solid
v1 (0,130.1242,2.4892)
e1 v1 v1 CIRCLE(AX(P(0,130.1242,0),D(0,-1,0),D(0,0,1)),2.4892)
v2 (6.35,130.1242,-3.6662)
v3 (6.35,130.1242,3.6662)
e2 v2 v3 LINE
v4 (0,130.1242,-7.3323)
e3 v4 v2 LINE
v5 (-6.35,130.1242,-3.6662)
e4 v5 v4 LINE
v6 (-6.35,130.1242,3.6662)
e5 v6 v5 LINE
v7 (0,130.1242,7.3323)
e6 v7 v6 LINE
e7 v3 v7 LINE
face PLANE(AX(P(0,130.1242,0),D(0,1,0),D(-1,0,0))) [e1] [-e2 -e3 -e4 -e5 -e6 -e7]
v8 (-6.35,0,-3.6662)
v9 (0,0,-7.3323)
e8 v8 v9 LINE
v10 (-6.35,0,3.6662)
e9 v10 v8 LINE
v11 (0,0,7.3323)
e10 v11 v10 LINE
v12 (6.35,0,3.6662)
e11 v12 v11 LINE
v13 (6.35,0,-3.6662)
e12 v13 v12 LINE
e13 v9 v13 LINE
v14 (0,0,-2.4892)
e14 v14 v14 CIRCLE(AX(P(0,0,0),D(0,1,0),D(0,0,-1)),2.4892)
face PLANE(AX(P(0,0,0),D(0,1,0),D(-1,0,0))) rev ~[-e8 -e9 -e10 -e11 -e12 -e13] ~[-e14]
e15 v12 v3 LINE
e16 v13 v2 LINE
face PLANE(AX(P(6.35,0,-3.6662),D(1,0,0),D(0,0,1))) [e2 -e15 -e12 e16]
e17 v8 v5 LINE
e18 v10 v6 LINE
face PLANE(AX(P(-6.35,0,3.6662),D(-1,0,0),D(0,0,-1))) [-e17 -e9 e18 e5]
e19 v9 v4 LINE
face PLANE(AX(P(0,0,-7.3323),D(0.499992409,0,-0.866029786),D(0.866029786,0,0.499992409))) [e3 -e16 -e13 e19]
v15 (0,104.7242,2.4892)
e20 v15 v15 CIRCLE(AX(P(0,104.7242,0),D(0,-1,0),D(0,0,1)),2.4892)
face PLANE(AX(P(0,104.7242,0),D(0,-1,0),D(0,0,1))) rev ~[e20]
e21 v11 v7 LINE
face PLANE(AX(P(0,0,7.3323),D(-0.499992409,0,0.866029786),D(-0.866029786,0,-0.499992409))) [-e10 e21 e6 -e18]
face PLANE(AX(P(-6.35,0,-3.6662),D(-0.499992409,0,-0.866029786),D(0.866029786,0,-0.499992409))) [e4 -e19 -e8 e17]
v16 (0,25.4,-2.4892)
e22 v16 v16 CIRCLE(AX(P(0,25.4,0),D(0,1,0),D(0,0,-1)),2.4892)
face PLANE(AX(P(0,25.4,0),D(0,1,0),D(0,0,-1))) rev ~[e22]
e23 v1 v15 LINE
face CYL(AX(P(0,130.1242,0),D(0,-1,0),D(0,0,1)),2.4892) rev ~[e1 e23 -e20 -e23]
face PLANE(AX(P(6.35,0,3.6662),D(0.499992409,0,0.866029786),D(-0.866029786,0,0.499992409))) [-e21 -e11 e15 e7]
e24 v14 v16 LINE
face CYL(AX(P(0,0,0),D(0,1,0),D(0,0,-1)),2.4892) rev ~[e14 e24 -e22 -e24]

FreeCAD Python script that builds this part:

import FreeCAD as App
import Part
import Sketcher

V = App.Vector
Q = App.Units.Quantity


def add_polygon(sketch, points):
    """Adds a closed chain of lines whose ends are joined by coincident constraints."""
    first, n = sketch.GeometryCount, len(points)
    for a, b in zip(points, points[1:] + points[:1]):
        sketch.addGeometry(Part.LineSegment(App.Vector(*a, 0), App.Vector(*b, 0)), False)
    for i in range(n):
        sketch.addConstraint(Sketcher.Constraint("Coincident", first + i, 2, first + (i + 1) % n, 1))

doc = App.newDocument("Part")
body = doc.addObject("PartDesign::Body", "Body")

sketch1 = body.newObject("Sketcher::SketchObject", "Sketch")
sketch1.AttachmentSupport = (doc.getObject("XZ_Plane"), [""])
sketch1.MapMode = "FlatFace"
add_polygon(sketch1, [(0, -7), (-6, -4), (-6, 4), (0, 7), (6, 4), (6, -4)])
sketch1.addConstraint(Sketcher.Constraint("Vertical", 1))
sketch1.addConstraint(Sketcher.Constraint("Vertical", 4))
sketch1.addConstraint(Sketcher.Constraint("Symmetric", 0, 2, 3, 2, -1, 1))
sketch1.addConstraint(Sketcher.Constraint("Symmetric", 2, 2, 5, 2, -1, 1))
sketch1.addConstraint(Sketcher.Constraint("PointOnObject", 2, 2, -2))
sketch1.addConstraint(Sketcher.Constraint("Parallel", 2, 5))
sketch1.addConstraint(Sketcher.Constraint("Horizontal", 1, 2, 3, 2))
sketch1.addConstraint(Sketcher.Constraint("DistanceX", 1, 2, 3, 2, Q("0.5 in")))
sketch1.addConstraint(Sketcher.Constraint("Angle", 0, Q("150.0005 deg")))
sketch1.addConstraint(Sketcher.Constraint("DistanceY", 0, 2, 2, 2, Q("0.433 in")))
pad1 = body.newObject("PartDesign::Pad", "Pad")
pad1.Profile = sketch1
pad1.Length = Q("5.123 in")
pad1.Reversed = True

sketch2 = body.newObject("Sketcher::SketchObject", "Sketch001")
sketch2.AttachmentSupport = (doc.getObject("XZ_Plane"), [""])
sketch2.MapMode = "FlatFace"
sketch2.addGeometry(Part.Circle(V(0, 0, 0), V(0, 0, 1), 2.5), False)
sketch2.addConstraint(Sketcher.Constraint("Coincident", 0, 3, -1, 1))
sketch2.addConstraint(Sketcher.Constraint("Diameter", 0, Q("0.196 in")))
doc.recompute()
hole = body.newObject("PartDesign::Hole", "Hole")
hole.Profile = sketch2
hole.ThreadType = "None"
hole.Diameter = Q("0.196 in")
hole.DepthType = "Dimension"
hole.Depth = Q("1 in")
hole.DrillPoint = "Flat"

sketch3 = body.newObject("Sketcher::SketchObject", "Sketch002")
sketch3.AttachmentSupport = (doc.getObject("XZ_Plane"), [""])
sketch3.MapMode = "FlatFace"
sketch3.AttachmentOffset = App.Placement(V(0, 0, -5.123 * 25.4), App.Rotation())
sketch3.addGeometry(Part.Circle(V(0, 0, 0), V(0, 0, 1), 2.5), False)
sketch3.addConstraint(Sketcher.Constraint("Coincident", 0, 3, -1, 1))
sketch3.addConstraint(Sketcher.Constraint("Diameter", 0, Q("0.196 in")))
doc.recompute()
hole2 = body.newObject("PartDesign::Hole", "Hole001")
hole2.Profile = sketch3
hole2.ThreadType = "None"
hole2.Diameter = Q("0.196 in")
hole2.DepthType = "Dimension"
hole2.Depth = Q("1 in")
hole2.DrillPoint = "Flat"
hole2.Reversed = True

doc.recompute()
